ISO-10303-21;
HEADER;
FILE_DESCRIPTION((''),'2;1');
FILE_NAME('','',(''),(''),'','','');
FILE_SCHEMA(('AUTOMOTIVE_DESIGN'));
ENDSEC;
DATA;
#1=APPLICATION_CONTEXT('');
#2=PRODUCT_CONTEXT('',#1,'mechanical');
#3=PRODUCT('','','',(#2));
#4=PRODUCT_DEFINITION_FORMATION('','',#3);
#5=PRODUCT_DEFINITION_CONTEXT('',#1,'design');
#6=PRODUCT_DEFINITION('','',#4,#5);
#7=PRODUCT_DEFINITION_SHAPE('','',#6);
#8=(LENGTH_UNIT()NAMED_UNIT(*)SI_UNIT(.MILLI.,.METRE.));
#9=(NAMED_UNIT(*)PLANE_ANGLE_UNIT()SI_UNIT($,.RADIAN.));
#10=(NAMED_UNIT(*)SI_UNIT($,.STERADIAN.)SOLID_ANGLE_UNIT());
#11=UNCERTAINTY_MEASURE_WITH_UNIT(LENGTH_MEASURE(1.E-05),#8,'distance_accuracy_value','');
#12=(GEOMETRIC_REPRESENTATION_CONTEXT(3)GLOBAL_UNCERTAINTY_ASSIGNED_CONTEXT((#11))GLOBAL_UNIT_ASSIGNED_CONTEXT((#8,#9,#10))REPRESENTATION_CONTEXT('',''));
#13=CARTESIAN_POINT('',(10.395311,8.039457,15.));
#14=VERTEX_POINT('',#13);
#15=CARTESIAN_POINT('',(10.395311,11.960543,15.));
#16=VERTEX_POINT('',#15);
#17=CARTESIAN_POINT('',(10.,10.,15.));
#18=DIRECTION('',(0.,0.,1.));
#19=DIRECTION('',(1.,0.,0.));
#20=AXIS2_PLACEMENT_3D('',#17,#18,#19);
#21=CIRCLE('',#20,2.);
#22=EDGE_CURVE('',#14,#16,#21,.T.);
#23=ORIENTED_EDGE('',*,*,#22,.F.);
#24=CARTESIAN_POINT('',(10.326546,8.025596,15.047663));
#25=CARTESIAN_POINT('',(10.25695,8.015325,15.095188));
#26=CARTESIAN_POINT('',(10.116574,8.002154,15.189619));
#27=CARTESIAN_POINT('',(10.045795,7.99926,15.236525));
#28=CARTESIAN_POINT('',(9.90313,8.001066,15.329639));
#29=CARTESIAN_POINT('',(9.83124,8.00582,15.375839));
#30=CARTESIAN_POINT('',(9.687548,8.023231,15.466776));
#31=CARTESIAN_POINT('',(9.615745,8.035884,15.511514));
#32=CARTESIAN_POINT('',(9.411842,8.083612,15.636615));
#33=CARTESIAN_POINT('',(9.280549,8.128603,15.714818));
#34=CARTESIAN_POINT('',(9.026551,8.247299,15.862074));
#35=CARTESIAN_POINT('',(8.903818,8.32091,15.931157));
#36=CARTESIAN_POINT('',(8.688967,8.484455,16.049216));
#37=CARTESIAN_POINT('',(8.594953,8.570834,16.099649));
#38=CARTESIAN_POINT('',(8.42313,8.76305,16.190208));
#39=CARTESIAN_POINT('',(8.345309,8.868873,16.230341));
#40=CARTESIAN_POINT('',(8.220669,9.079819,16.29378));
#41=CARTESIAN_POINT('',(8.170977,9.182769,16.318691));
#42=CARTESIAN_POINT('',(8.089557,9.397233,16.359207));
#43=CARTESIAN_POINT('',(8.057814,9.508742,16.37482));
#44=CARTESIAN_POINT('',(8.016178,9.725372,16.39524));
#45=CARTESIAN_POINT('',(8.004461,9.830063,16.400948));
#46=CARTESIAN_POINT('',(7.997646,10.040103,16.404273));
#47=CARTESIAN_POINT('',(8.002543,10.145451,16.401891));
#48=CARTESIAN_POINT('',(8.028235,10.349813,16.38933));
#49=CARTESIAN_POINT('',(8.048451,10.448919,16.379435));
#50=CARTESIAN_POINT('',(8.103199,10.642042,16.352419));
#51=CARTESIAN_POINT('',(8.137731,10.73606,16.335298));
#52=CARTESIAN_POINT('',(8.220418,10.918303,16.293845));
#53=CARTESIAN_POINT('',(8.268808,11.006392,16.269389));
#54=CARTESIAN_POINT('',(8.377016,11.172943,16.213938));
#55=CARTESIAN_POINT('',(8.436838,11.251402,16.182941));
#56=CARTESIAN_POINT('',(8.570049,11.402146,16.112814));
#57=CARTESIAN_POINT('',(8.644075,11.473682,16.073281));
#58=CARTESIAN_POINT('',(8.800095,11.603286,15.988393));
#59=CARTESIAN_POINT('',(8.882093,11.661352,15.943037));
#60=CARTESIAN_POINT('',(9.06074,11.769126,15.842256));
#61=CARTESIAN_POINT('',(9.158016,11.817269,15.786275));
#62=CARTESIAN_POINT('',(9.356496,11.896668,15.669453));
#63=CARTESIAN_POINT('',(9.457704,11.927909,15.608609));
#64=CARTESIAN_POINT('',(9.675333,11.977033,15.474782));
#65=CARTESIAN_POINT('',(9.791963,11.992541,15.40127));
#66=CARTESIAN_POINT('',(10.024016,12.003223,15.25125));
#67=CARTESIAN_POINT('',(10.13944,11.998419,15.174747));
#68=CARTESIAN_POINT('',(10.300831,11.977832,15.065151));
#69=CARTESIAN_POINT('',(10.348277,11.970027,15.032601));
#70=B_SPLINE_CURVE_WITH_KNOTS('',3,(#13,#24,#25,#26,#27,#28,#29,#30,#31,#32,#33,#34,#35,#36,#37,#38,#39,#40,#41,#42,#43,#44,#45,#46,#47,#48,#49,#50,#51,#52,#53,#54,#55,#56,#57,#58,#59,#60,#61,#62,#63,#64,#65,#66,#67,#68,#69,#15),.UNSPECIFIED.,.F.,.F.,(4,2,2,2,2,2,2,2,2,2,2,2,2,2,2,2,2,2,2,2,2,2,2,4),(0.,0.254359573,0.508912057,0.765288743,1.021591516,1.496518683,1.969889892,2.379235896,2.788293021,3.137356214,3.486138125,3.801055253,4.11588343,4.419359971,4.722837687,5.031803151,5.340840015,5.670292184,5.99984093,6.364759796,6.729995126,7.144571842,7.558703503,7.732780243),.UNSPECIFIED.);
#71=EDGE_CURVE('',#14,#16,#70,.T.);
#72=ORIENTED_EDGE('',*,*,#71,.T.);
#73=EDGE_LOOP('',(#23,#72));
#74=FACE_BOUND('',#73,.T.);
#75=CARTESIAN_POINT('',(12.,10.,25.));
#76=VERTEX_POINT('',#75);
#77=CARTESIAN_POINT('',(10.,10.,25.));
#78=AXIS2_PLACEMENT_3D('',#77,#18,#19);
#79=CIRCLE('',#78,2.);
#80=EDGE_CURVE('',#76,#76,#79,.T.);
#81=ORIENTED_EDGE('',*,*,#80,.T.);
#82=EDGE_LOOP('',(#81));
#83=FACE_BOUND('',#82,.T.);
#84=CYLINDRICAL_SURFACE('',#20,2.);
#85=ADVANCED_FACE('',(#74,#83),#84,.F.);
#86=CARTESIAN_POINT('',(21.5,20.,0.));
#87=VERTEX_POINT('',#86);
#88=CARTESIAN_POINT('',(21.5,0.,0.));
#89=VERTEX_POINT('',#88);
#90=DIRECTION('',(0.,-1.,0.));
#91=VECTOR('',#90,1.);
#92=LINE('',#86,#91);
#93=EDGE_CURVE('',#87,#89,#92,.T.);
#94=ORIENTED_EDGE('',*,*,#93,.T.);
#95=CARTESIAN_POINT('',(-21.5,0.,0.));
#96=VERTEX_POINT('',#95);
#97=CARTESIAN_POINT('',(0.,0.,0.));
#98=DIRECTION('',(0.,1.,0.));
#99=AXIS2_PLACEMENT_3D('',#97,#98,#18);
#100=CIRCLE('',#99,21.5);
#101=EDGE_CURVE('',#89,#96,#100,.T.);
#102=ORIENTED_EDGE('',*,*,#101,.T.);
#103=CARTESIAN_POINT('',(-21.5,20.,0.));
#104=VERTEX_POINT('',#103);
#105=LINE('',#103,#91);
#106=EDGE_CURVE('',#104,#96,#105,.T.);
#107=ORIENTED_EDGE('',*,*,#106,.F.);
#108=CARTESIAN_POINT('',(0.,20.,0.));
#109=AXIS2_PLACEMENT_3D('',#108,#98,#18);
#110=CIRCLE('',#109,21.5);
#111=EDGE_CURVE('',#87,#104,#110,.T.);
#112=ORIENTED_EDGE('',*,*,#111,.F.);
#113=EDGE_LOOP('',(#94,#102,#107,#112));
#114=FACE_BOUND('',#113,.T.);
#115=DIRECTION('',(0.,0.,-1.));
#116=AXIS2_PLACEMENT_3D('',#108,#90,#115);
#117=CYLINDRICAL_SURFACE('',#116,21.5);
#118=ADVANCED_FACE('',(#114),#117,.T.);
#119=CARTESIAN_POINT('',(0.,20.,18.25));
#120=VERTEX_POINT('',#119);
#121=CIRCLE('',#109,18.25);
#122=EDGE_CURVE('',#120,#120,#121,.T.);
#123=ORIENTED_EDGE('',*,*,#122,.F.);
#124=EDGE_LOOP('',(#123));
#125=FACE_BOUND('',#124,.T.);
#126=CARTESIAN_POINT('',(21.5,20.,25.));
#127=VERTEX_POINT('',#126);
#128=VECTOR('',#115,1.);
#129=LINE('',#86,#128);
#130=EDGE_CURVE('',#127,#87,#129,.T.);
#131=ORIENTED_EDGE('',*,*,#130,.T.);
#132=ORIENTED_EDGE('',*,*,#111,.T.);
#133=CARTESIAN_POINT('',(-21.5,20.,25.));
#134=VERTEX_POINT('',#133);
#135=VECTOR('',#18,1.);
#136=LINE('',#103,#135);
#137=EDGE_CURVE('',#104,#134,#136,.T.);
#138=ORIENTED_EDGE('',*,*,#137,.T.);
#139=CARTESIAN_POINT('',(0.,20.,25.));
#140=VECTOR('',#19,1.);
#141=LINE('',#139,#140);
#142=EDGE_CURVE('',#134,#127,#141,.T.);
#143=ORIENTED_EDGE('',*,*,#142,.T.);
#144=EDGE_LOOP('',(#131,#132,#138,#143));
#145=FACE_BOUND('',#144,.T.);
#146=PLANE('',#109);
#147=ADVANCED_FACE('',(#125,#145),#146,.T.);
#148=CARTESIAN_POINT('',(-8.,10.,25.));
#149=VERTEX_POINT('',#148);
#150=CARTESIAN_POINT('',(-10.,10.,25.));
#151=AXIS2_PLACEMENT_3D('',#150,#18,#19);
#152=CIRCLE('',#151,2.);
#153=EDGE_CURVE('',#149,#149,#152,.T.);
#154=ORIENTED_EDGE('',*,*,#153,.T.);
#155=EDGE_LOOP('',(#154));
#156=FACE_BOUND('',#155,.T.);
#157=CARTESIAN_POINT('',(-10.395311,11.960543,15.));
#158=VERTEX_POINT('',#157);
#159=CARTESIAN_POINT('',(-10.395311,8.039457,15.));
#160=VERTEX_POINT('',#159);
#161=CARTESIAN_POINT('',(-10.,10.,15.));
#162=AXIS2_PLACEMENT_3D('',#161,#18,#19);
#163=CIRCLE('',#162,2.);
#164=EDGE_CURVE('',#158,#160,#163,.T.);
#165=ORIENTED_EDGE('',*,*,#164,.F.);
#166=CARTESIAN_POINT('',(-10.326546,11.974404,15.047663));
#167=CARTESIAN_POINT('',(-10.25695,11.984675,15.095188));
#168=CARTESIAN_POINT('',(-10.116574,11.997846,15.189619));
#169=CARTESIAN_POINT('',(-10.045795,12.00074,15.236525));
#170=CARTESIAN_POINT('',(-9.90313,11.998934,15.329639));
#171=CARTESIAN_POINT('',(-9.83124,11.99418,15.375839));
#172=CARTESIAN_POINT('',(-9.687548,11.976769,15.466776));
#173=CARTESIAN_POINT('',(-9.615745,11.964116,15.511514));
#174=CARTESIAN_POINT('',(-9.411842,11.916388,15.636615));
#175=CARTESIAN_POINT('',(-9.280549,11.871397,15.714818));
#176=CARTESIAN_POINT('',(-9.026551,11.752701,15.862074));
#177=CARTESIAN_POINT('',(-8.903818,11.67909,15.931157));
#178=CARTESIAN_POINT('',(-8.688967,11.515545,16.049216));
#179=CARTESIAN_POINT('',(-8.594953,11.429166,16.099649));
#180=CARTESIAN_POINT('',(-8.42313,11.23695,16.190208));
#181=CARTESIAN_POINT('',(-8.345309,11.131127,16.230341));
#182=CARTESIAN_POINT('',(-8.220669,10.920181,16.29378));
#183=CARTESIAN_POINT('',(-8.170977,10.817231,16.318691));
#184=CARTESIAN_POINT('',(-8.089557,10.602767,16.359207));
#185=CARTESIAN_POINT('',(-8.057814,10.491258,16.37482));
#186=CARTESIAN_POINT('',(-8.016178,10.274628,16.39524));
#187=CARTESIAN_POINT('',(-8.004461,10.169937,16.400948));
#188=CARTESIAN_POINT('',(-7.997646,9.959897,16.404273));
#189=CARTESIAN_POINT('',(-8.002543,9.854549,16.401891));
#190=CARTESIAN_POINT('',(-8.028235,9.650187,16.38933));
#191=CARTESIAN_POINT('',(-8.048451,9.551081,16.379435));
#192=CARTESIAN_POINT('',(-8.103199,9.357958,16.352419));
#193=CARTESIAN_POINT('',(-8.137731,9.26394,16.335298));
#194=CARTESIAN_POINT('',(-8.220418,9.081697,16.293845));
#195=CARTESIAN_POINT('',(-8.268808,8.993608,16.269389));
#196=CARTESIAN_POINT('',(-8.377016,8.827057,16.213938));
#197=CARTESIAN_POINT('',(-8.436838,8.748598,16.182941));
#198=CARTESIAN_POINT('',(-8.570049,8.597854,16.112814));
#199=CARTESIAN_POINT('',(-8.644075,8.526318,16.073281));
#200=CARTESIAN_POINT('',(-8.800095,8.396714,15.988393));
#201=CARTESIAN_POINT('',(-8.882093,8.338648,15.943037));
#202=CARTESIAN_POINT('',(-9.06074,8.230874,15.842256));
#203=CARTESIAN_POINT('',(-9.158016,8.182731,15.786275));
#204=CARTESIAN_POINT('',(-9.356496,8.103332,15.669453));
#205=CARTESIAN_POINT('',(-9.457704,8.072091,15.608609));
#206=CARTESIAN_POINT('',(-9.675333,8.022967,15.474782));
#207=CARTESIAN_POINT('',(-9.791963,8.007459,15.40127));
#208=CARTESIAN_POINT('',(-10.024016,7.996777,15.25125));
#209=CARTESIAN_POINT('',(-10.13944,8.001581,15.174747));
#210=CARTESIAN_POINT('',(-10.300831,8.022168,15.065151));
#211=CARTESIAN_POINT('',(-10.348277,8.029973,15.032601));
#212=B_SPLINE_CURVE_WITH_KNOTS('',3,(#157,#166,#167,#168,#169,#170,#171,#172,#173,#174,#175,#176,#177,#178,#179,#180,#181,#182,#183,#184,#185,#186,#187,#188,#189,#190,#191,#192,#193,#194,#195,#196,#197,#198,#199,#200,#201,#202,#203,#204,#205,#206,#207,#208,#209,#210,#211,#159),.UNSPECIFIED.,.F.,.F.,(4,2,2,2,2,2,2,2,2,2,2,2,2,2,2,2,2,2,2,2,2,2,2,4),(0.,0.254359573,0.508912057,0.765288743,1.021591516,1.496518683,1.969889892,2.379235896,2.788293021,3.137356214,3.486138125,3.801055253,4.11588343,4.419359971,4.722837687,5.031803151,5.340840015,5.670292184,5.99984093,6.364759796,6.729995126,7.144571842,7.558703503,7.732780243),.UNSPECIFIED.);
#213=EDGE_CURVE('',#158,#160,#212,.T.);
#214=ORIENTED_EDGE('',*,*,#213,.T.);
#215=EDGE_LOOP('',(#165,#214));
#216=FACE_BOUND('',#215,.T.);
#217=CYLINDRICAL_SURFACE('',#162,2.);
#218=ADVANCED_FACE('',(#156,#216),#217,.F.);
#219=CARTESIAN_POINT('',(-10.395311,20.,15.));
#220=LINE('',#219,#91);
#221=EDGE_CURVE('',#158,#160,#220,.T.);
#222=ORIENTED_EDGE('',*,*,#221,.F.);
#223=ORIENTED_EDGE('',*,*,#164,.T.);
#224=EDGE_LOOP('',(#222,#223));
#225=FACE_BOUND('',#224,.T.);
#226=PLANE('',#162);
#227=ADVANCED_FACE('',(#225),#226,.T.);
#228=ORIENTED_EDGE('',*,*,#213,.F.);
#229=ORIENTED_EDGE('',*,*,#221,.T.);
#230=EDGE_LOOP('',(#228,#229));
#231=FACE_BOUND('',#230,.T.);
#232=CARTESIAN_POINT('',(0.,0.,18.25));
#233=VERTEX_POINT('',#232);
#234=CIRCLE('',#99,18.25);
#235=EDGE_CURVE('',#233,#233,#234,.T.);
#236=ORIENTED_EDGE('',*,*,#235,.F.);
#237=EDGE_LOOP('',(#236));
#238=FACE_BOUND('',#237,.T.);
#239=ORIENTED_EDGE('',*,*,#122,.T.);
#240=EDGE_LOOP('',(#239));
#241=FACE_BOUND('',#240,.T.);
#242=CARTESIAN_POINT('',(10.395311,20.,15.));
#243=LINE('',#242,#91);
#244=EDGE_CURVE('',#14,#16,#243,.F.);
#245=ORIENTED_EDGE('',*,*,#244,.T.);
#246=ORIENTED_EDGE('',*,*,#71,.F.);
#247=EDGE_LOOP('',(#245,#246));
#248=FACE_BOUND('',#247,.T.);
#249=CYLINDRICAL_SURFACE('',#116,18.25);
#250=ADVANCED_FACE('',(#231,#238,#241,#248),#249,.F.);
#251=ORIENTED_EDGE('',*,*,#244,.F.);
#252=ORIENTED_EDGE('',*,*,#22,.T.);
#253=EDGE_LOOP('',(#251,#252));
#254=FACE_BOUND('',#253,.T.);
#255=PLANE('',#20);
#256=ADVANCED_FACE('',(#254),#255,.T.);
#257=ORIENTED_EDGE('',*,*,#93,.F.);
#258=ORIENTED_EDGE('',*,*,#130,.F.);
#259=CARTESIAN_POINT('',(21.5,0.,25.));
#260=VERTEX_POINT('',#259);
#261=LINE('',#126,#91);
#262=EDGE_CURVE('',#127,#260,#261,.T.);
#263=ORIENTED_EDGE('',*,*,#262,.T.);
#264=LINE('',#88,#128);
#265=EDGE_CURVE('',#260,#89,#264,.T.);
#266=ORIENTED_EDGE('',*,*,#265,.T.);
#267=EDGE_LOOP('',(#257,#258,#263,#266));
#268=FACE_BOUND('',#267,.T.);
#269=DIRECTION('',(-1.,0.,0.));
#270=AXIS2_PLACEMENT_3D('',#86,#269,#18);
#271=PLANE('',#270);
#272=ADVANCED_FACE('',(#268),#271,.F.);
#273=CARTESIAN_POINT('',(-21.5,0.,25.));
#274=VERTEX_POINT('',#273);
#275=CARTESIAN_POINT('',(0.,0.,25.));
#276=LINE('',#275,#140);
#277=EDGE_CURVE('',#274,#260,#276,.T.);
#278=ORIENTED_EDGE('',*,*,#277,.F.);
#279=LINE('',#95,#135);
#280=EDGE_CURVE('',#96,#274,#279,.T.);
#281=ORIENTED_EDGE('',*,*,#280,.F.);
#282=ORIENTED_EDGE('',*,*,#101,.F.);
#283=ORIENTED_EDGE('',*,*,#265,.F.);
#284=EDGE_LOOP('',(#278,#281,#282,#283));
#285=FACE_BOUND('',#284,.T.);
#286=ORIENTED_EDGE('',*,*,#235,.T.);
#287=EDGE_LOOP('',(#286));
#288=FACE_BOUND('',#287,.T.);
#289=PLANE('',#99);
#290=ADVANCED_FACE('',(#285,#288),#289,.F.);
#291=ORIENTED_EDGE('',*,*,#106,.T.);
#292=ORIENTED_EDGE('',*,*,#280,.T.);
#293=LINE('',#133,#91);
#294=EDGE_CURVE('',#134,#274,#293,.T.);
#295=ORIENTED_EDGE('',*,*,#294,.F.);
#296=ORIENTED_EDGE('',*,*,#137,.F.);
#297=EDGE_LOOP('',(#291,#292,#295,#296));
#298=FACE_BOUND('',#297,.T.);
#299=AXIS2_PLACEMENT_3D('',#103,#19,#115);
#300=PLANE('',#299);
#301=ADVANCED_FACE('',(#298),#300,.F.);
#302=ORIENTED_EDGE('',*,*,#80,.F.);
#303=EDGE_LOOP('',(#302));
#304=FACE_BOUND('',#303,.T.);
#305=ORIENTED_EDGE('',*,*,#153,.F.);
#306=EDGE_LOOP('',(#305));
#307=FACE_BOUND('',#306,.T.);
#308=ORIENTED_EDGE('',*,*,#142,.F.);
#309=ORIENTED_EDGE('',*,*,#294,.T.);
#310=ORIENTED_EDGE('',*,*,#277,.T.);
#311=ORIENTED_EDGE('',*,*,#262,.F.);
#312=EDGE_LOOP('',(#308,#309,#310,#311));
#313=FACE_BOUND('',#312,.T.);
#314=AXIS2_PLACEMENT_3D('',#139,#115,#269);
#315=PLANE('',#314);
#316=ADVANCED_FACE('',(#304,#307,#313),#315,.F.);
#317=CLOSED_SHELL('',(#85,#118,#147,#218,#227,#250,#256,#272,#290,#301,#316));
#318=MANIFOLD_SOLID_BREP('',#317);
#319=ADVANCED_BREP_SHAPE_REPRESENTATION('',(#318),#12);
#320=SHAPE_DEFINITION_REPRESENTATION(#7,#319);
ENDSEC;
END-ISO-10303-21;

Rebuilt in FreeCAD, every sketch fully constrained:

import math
import FreeCAD as App
import Part
import Sketcher
Q = App.Units.Quantity

doc = App.newDocument("Part")
body = doc.addObject("PartDesign::Body", "Body")

# Sketch on XZ plane
sketch1 = doc.addObject("Sketcher::SketchObject", "Sketch")
body.addObject(sketch1)
sketch1.AttachmentSupport = (doc.XZ_Plane, [""])
sketch1.MapMode = "FlatFace"
sketch1.addGeometry(Part.LineSegment(App.Vector(-22, 0, 0), App.Vector(-22, 25, 0)), False)
sketch1.addGeometry(Part.LineSegment(App.Vector(-22, 25, 0), App.Vector(22, 25, 0)), False)
sketch1.addGeometry(Part.LineSegment(App.Vector(22, 25, 0), App.Vector(22, 0, 0)), False)
sketch1.addGeometry(Part.ArcOfCircle(Part.Circle(App.Vector(0, 0, 0), App.Vector(0, 0, 1), 22), math.radians(180), math.radians(360)), False)
sketch1.addGeometry(Part.Circle(App.Vector(0, 0, 0), App.Vector(0, 0, 1), 18), False)
sketch1.addConstraint(Sketcher.Constraint("Coincident", 0, 2, 1, 1))
sketch1.addConstraint(Sketcher.Constraint("Coincident", 1, 2, 2, 1))
sketch1.addConstraint(Sketcher.Constraint("Tangent", 2, 2, 3, 2))
sketch1.addConstraint(Sketcher.Constraint("Tangent", 3, 1, 0, 1))
sketch1.addConstraint(Sketcher.Constraint("Vertical", 0))
sketch1.addConstraint(Sketcher.Constraint("Horizontal", 1))
sketch1.addConstraint(Sketcher.Constraint("Vertical", 2))
sketch1.addConstraint(Sketcher.Constraint("Coincident", 3, 3, -1, 1))
sketch1.addConstraint(Sketcher.Constraint("Coincident", 4, 3, -1, 1))
sketch1.addConstraint(Sketcher.Constraint("Diameter", 4, Q("36.5 mm")))
sketch1.addConstraint(Sketcher.Constraint("Radius", 3, Q("21.5 mm")))
sketch1.addConstraint(Sketcher.Constraint("DistanceY", 0, 1, 0, 2, Q("25 mm")))
pad1 = doc.addObject("PartDesign::Pad", "Pad")
body.addObject(pad1)
pad1.Profile = sketch1
pad1.Length = 20
pad1.Reversed = True

# Sketch on XY plane
sketch2 = doc.addObject("Sketcher::SketchObject", "Sketch001")
body.addObject(sketch2)
sketch2.AttachmentSupport = (doc.XY_Plane, [""])
sketch2.MapMode = "FlatFace"
sketch2.AttachmentOffset = App.Placement(App.Vector(0, 0, 25), App.Rotation())
sketch2.addGeometry(Part.Circle(App.Vector(-10, 10, 0), App.Vector(0, 0, 1), 2), False)
sketch2.addGeometry(Part.Circle(App.Vector(10, 10, 0), App.Vector(0, 0, 1), 2), False)
sketch2.addConstraint(Sketcher.Constraint("Equal", 0, 1))
sketch2.addConstraint(Sketcher.Constraint("Symmetric", 0, 3, 1, 3, -2))
sketch2.addConstraint(Sketcher.Constraint("Diameter", 0, Q("4 mm")))
sketch2.addConstraint(Sketcher.Constraint("DistanceX", 0, 3, -1, 1, Q("10 mm")))
sketch2.addConstraint(Sketcher.Constraint("DistanceY", -1, 1, 0, 3, Q("10 mm")))
pocket1 = doc.addObject("PartDesign::Pocket", "Pocket")
body.addObject(pocket1)
pocket1.Profile = sketch2
pocket1.Length = 10

doc.recompute()
